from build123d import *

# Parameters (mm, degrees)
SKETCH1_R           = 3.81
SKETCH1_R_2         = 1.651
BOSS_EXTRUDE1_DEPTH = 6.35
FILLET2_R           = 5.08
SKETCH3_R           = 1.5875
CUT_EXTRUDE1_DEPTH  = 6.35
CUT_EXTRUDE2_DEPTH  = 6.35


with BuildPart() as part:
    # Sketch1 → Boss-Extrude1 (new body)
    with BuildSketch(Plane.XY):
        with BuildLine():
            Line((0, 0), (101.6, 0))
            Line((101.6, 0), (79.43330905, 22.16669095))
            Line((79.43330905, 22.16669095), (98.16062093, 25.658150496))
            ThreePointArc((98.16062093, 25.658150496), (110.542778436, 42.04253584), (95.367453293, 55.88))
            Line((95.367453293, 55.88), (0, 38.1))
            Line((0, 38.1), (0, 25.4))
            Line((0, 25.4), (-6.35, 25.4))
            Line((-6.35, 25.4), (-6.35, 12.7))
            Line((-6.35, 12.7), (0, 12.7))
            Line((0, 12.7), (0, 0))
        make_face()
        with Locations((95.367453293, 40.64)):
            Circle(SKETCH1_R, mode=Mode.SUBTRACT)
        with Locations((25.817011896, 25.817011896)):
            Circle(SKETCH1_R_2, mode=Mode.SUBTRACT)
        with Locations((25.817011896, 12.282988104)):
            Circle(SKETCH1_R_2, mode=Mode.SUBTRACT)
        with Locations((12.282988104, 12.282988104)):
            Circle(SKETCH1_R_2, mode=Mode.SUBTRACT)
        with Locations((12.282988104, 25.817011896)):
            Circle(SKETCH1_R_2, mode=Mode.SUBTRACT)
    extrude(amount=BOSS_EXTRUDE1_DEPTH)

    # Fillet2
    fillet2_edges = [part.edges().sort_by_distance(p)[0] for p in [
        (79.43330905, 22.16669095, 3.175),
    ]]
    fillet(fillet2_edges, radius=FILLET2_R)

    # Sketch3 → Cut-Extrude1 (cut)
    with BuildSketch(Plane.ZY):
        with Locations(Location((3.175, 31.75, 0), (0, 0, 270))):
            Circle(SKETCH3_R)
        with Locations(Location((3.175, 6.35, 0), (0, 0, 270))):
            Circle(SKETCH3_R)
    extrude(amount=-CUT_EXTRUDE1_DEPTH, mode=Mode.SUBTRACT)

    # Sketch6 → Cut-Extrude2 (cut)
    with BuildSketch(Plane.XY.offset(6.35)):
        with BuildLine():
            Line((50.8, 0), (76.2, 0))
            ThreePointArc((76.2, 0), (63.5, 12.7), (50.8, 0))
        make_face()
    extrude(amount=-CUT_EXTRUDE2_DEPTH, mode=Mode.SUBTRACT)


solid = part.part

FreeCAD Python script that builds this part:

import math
import FreeCAD as App
import Part
import Sketcher
from FreeCAD import Vector
Q = App.Units.Quantity


def edges_at(feature, points):
    """Names of the edges that pass closest to the given points."""
    edges = feature.Shape.Edges
    near = lambda p: min(range(len(edges)), key=lambda i: edges[i].distToShape(Part.Vertex(*p))[0])
    return sorted({f"Edge{near(p) + 1}" for p in points})

doc = App.newDocument("Part")
body = doc.addObject("PartDesign::Body", "Body")

# Sketch on XY plane
sketch1 = body.newObject("Sketcher::SketchObject", "Sketch")
sketch1.AttachmentSupport = (doc.getObject("XY_Plane"), [""])
sketch1.MapMode = "FlatFace"
sketch1.addGeometry([
    Part.LineSegment(Vector(0, 0, 0), Vector(101.6, 0, 0)),  # 0
    Part.LineSegment(Vector(101.6, 0, 0), Vector(79.433309, 22.166691, 0)),  # 1
    Part.LineSegment(Vector(79.433309, 22.166691, 0), Vector(98.160621, 25.65815, 0)),  # 2
    Part.ArcOfCircle(Part.Circle(Vector(95.367453, 40.64, 0), Vector(0, 0, 1), 15.24), math.radians(-79.439206), math.radians(90)),  # 3
    Part.LineSegment(Vector(95.367453, 55.88, 0), Vector(0, 38.1, 0)),  # 4
    Part.LineSegment(Vector(0, 38.1, 0), Vector(0, 25.4, 0)),  # 5
    Part.LineSegment(Vector(0, 25.4, 0), Vector(-6.35, 25.4, 0)),  # 6
    Part.LineSegment(Vector(-6.35, 25.4, 0), Vector(-6.35, 12.7, 0)),  # 7
    Part.LineSegment(Vector(-6.35, 12.7, 0), Vector(0, 12.7, 0)),  # 8
    Part.LineSegment(Vector(0, 12.7, 0), Vector(0, 0, 0)),  # 9
    Part.Circle(Vector(12.282988, 12.282988, 0), Vector(0, 0, 1), 1.651),  # 10
    Part.Circle(Vector(25.817012, 12.282988, 0), Vector(0, 0, 1), 1.651),  # 11
    Part.Circle(Vector(12.282988, 25.817012, 0), Vector(0, 0, 1), 1.651),  # 12
    Part.Circle(Vector(25.817012, 25.817012, 0), Vector(0, 0, 1), 1.651),  # 13
    Part.Circle(Vector(95.367453, 40.64, 0), Vector(0, 0, 1), 3.81),  # 14
], False)
sketch1.addConstraint([
    Sketcher.Constraint("Coincident", 0, 2, 1, 1),
    Sketcher.Constraint("Coincident", 1, 2, 2, 1),
    Sketcher.Constraint("Tangent", 2, 2, 3, 1),
    Sketcher.Constraint("Coincident", 3, 2, 4, 1),
    Sketcher.Constraint("Coincident", 4, 2, 5, 1),
    Sketcher.Constraint("Coincident", 5, 2, 6, 1),
    Sketcher.Constraint("Coincident", 6, 2, 7, 1),
    Sketcher.Constraint("Coincident", 7, 2, 8, 1),
    Sketcher.Constraint("Coincident", 8, 2, 9, 1),
    Sketcher.Constraint("Coincident", 9, 2, 0, 1),
    Sketcher.Constraint("Horizontal", 0),
    Sketcher.Constraint("Vertical", 5),
    Sketcher.Constraint("Horizontal", 6),
    Sketcher.Constraint("Vertical", 7),
    Sketcher.Constraint("Horizontal", 8),
    Sketcher.Constraint("Vertical", 9),
    Sketcher.Constraint("Coincident", 9, 2, -1, 1),
    Sketcher.Constraint("Coincident", 14, 3, 3, 3),
    Sketcher.Constraint("Equal", 10, 11),
    Sketcher.Constraint("Equal", 11, 12),
    Sketcher.Constraint("Equal", 12, 13),
    Sketcher.Constraint("PointOnObject", 4, 2, -2),
    Sketcher.Constraint("Parallel", 2, 4),
    Sketcher.Constraint("Horizontal", 10, 3, 11, 3),
    Sketcher.Constraint("Horizontal", 12, 3, 13, 3),
    Sketcher.Constraint("Vertical", 10, 3, 12, 3),
    Sketcher.Constraint("Vertical", 11, 3, 13, 3),
    Sketcher.Constraint("Vertical", 14, 3, 3, 2),
    Sketcher.Constraint("Equal", 5, 7),
    Sketcher.Constraint("Equal", 7, 9),
    Sketcher.Constraint("Diameter", 14, Q("0.3 in")),
    Sketcher.Constraint("Radius", 3, Q("0.6 in")),
    Sketcher.Constraint("Diameter", 10, Q("0.13 in")),
    Sketcher.Constraint("DistanceX", 0, 1, 0, 2, Q("4 in")),
    Sketcher.Constraint("DistanceY", 5, 2, 5, 1, Q("0.5 in")),
    Sketcher.Constraint("Angle", 1, Q("135 deg")),
    Sketcher.Constraint("DistanceX", 6, 2, 6, 1, Q("0.25 in")),
    Sketcher.Constraint("DistanceY", -1, 1, 3, 3, Q("1.6 in")),
    Sketcher.Constraint("Distance", 2, Q("0.75 in")),
    Sketcher.Constraint("DistanceX", -1, 1, 10, 3, Q("12.282988 mm")),
    Sketcher.Constraint("DistanceY", -1, 1, 10, 3, Q("12.282988 mm")),
    Sketcher.Constraint("DistanceX", -1, 1, 11, 3, Q("25.817012 mm")),
    Sketcher.Constraint("DistanceY", -1, 1, 12, 3, Q("25.817012 mm")),
])
pad1 = body.newObject("PartDesign::Pad", "Pad")
pad1.Profile = sketch1
pad1.Length = Q("0.25 in")
doc.recompute()

fillet = body.newObject("PartDesign::Fillet", "Fillet")
fillet.Base = (pad1, edges_at(pad1, [(79.433, 22.167, 3.175)]))
fillet.Radius = Q("0.2 in")

# Sketch on YZ plane
sketch2 = body.newObject("Sketcher::SketchObject", "Sketch001")
sketch2.AttachmentSupport = (doc.getObject("YZ_Plane"), [""])
sketch2.MapMode = "FlatFace"
sketch2.addGeometry([
    Part.Circle(Vector(31.75, 3.175, 0), Vector(0, 0, 1), 1.5875),
    Part.Circle(Vector(6.35, 3.175, 0), Vector(0, 0, 1), 1.5875),
], False)
sketch2.addConstraint([
    Sketcher.Constraint("Equal", 0, 1),
    Sketcher.Constraint("Horizontal", 0, 3, 1, 3),
    Sketcher.Constraint("Diameter", 0, Q("0.125 in")),
    Sketcher.Constraint("DistanceX", 1, 3, 0, 3, Q("1 in")),
    Sketcher.Constraint("DistanceX", -1, 1, 0, 3, Q("1.25 in")),
    Sketcher.Constraint("DistanceY", -1, 1, 0, 3, Q("0.125 in")),
])
pocket1 = body.newObject("PartDesign::Pocket", "Pocket")
pocket1.Profile = sketch2
pocket1.Length = Q("0.25 in")
pocket1.Reversed = True

# Sketch on XY plane
sketch3 = body.newObject("Sketcher::SketchObject", "Sketch002")
sketch3.AttachmentSupport = (doc.getObject("XY_Plane"), [""])
sketch3.MapMode = "FlatFace"
sketch3.AttachmentOffset = App.Placement(Vector(0, 0, 0.25 * 25.4), App.Rotation())
sketch3.addGeometry([
    Part.LineSegment(Vector(50.8, 0, 0), Vector(76.2, 0, 0)),
    Part.ArcOfCircle(Part.Circle(Vector(63.5, 0, 0), Vector(0, 0, 1), 12.7), math.radians(0), math.radians(180)),
], False)
sketch3.addConstraint([
    Sketcher.Constraint("Coincident", 0, 1, 1, 2),
    Sketcher.Constraint("Coincident", 1, 1, 0, 2),
    Sketcher.Constraint("Horizontal", 0),
    Sketcher.Constraint("PointOnObject", 1, 3, -1),
    Sketcher.Constraint("PointOnObject", 0, 1, -1),
    Sketcher.Constraint("Radius", 1, Q("0.5 in")),
    Sketcher.Constraint("DistanceX", -1, 1, 0, 1, Q("2 in")),
])
pocket2 = body.newObject("PartDesign::Pocket", "Pocket001")
pocket2.Profile = sketch3
pocket2.Length = Q("0.25 in")

doc.recompute()
